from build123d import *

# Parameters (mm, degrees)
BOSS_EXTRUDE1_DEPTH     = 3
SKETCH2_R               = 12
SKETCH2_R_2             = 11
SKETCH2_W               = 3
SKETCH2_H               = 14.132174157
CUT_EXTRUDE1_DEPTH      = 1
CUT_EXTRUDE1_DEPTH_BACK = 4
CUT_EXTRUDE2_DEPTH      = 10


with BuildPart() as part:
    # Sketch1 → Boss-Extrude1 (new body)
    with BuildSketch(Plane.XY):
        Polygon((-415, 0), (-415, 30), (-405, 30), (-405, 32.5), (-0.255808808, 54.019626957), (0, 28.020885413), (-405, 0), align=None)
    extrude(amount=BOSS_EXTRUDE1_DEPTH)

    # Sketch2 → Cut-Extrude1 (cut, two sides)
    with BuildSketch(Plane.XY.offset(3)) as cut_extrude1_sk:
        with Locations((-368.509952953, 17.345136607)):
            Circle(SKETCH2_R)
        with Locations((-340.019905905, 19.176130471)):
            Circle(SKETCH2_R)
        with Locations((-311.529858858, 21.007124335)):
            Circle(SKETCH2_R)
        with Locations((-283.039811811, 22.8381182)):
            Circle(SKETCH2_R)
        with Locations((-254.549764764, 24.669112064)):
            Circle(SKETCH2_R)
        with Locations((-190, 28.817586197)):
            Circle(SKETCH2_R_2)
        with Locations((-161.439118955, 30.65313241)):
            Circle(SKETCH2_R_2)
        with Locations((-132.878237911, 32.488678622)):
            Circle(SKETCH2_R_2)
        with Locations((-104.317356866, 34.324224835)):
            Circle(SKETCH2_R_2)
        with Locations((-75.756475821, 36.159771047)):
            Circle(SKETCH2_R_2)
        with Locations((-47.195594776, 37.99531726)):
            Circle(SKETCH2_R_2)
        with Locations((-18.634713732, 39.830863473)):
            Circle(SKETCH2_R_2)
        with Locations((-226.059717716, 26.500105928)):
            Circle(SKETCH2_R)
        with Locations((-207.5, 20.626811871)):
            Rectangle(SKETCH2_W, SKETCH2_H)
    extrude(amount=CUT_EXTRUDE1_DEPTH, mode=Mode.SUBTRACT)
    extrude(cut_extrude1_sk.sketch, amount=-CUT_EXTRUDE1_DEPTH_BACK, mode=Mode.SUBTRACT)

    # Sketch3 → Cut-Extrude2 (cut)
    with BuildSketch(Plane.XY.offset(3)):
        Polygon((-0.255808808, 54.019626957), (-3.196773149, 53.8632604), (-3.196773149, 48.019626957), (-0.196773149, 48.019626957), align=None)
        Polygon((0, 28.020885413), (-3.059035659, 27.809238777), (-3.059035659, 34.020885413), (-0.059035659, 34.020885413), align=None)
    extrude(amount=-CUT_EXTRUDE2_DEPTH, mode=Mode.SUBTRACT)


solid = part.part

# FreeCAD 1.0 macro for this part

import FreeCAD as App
import Part
import Sketcher
from FreeCAD import Vector

doc = App.newDocument("Part")
body = doc.addObject("PartDesign::Body", "Body")

sketch1 = doc.addObject("Sketcher::SketchObject", "Sketch")
body.addObject(sketch1)
sketch1.AttachmentSupport = (doc.XY_Plane, [""])
sketch1.MapMode = "FlatFace"
sketch1.addGeometry(Part.LineSegment(Vector(-415, 30, 0), Vector(-415, 0, 0)), False)
sketch1.addGeometry(Part.LineSegment(Vector(-415, 0, 0), Vector(-405, 0, 0)), False)
sketch1.addGeometry(Part.LineSegment(Vector(-405, 0, 0), Vector(0, 28, 0)), False)
sketch1.addGeometry(Part.LineSegment(Vector(0, 28, 0), Vector(-0.3, 54, 0)), False)
sketch1.addGeometry(Part.LineSegment(Vector(-0.3, 54, 0), Vector(-405, 32.5, 0)), False)
sketch1.addGeometry(Part.LineSegment(Vector(-405, 32.5, 0), Vector(-405, 30, 0)), False)
sketch1.addGeometry(Part.LineSegment(Vector(-405, 30, 0), Vector(-415, 30, 0)), False)
sketch1.addConstraint(Sketcher.Constraint("Coincident", 0, 2, 1, 1))
sketch1.addConstraint(Sketcher.Constraint("Coincident", 1, 2, 2, 1))
sketch1.addConstraint(Sketcher.Constraint("Coincident", 2, 2, 3, 1))
sketch1.addConstraint(Sketcher.Constraint("Coincident", 3, 2, 4, 1))
sketch1.addConstraint(Sketcher.Constraint("Coincident", 4, 2, 5, 1))
sketch1.addConstraint(Sketcher.Constraint("Coincident", 5, 2, 6, 1))
sketch1.addConstraint(Sketcher.Constraint("Coincident", 6, 2, 0, 1))
sketch1.addConstraint(Sketcher.Constraint("Vertical", 0))
sketch1.addConstraint(Sketcher.Constraint("Horizontal", 1))
sketch1.addConstraint(Sketcher.Constraint("Vertical", 5))
sketch1.addConstraint(Sketcher.Constraint("Horizontal", 6))
sketch1.addConstraint(Sketcher.Constraint("PointOnObject", 0, 2, -1))
sketch1.addConstraint(Sketcher.Constraint("PointOnObject", 2, 2, -2))
sketch1.addConstraint(Sketcher.Constraint("Vertical", 1, 2, 4, 2))
sketch1.addConstraint(Sketcher.Constraint("DistanceX", 1, 1, 1, 2, 10.0))
sketch1.addConstraint(Sketcher.Constraint("DistanceY", 0, 2, 0, 1, 30.0))
sketch1.addConstraint(Sketcher.Constraint("Distance", 3, 26.0))
sketch1.addConstraint(Sketcher.Constraint("DistanceY", 5, 2, 5, 1, 2.5))
sketch1.addConstraint(Sketcher.Constraint("DistanceX", 0, 2, -1, 1, 415.0))
sketch1.addConstraint(Sketcher.Constraint("Distance", 2, 405.968188))
sketch1.addConstraint(Sketcher.Constraint("Distance", 4, 405.31587))
pad1 = doc.addObject("PartDesign::Pad", "Pad")
body.addObject(pad1)
pad1.Profile = sketch1
pad1.Length = 3

sketch2 = doc.addObject("Sketcher::SketchObject", "Sketch001")
body.addObject(sketch2)
sketch2.AttachmentSupport = (doc.XY_Plane, [""])
sketch2.MapMode = "FlatFace"
sketch2.AttachmentOffset = App.Placement(Vector(0, 0, 3), App.Rotation())
sketch2.addGeometry(Part.Circle(Vector(-368.5, 17.3, 0), Vector(0, 0, 1), 12), False)
sketch2.addGeometry(Part.Circle(Vector(-340, 19.2, 0), Vector(0, 0, 1), 12), False)
sketch2.addGeometry(Part.Circle(Vector(-311.5, 21, 0), Vector(0, 0, 1), 12), False)
sketch2.addGeometry(Part.Circle(Vector(-283, 22.8, 0), Vector(0, 0, 1), 12), False)
sketch2.addGeometry(Part.Circle(Vector(-254.5, 24.7, 0), Vector(0, 0, 1), 12), False)
sketch2.addGeometry(Part.Circle(Vector(-190, 28.8, 0), Vector(0, 0, 1), 11), False)
sketch2.addGeometry(Part.Circle(Vector(-161.4, 30.7, 0), Vector(0, 0, 1), 11), False)
sketch2.addGeometry(Part.Circle(Vector(-132.9, 32.5, 0), Vector(0, 0, 1), 11), False)
sketch2.addGeometry(Part.Circle(Vector(-104.3, 34.3, 0), Vector(0, 0, 1), 11), False)
sketch2.addGeometry(Part.Circle(Vector(-75.8, 36.2, 0), Vector(0, 0, 1), 11), False)
sketch2.addGeometry(Part.Circle(Vector(-47.2, 38, 0), Vector(0, 0, 1), 11), False)
sketch2.addGeometry(Part.Circle(Vector(-18.6, 39.8, 0), Vector(0, 0, 1), 11), False)
sketch2.addGeometry(Part.Circle(Vector(-226.1, 26.5, 0), Vector(0, 0, 1), 12), False)
sketch2.addGeometry(Part.LineSegment(Vector(-209, 27.7, 0), Vector(-209, 13.6, 0)), False)
sketch2.addGeometry(Part.LineSegment(Vector(-209, 13.6, 0), Vector(-206, 13.6, 0)), False)
sketch2.addGeometry(Part.LineSegment(Vector(-206, 13.6, 0), Vector(-206, 27.7, 0)), False)
sketch2.addGeometry(Part.LineSegment(Vector(-206, 27.7, 0), Vector(-209, 27.7, 0)), False)
sketch2.addConstraint(Sketcher.Constraint("Coincident", 13, 2, 14, 1))
sketch2.addConstraint(Sketcher.Constraint("Coincident", 14, 2, 15, 1))
sketch2.addConstraint(Sketcher.Constraint("Coincident", 15, 2, 16, 1))
sketch2.addConstraint(Sketcher.Constraint("Coincident", 16, 2, 13, 1))
sketch2.addConstraint(Sketcher.Constraint("Vertical", 13))
sketch2.addConstraint(Sketcher.Constraint("Horizontal", 14))
sketch2.addConstraint(Sketcher.Constraint("Vertical", 15))
sketch2.addConstraint(Sketcher.Constraint("Horizontal", 16))
sketch2.addConstraint(Sketcher.Constraint("Equal", 0, 1))
sketch2.addConstraint(Sketcher.Constraint("Equal", 1, 2))
sketch2.addConstraint(Sketcher.Constraint("Equal", 2, 3))
sketch2.addConstraint(Sketcher.Constraint("Equal", 3, 4))
sketch2.addConstraint(Sketcher.Constraint("Equal", 5, 6))
sketch2.addConstraint(Sketcher.Constraint("Equal", 6, 7))
sketch2.addConstraint(Sketcher.Constraint("Equal", 7, 8))
sketch2.addConstraint(Sketcher.Constraint("Equal", 8, 9))
sketch2.addConstraint(Sketcher.Constraint("Equal", 9, 10))
sketch2.addConstraint(Sketcher.Constraint("Equal", 10, 11))
sketch2.addConstraint(Sketcher.Constraint("Equal", 4, 12))
sketch2.addConstraint(Sketcher.Constraint("Diameter", 0, 24.0))
sketch2.addConstraint(Sketcher.Constraint("Diameter", 5, 22.0))
sketch2.addConstraint(Sketcher.Constraint("DistanceX", 14, 1, 14, 2, 3.0))
sketch2.addConstraint(Sketcher.Constraint("DistanceX", 5, 3, -1, 1, 190.0))
sketch2.addConstraint(Sketcher.Constraint("DistanceX", 13, 2, -1, 1, 209.0))
sketch2.addConstraint(Sketcher.Constraint("DistanceY", 1, 3, 6, 3, 11.477002))
sketch2.addConstraint(Sketcher.Constraint("DistanceY", -1, 1, 15, 2, 27.692899))
sketch2.addConstraint(Sketcher.Constraint("DistanceX", 12, 3, 6, 3, 64.620599))
sketch2.addConstraint(Sketcher.Constraint("DistanceY", 13, 2, 13, 1, 14.132174))
sketch2.addConstraint(Sketcher.Constraint("DistanceY", -1, 1, 1, 3, 19.17613))
sketch2.addConstraint(Sketcher.Constraint("DistanceX", 2, 3, -1, 1, 311.529859))
sketch2.addConstraint(Sketcher.Constraint("DistanceX", 3, 3, -1, 1, 283.039812))
sketch2.addConstraint(Sketcher.Constraint("DistanceY", -1, 1, 3, 3, 22.838118))
sketch2.addConstraint(Sketcher.Constraint("DistanceX", 6, 3, -1, 1, 161.439119))
sketch2.addConstraint(Sketcher.Constraint("DistanceY", -1, 1, 7, 3, 32.488679))
sketch2.addConstraint(Sketcher.Constraint("DistanceY", -1, 1, 9, 3, 36.159771))
sketch2.addConstraint(Sketcher.Constraint("DistanceX", 0, 3, 3, 3, 85.470141))
sketch2.addConstraint(Sketcher.Constraint("DistanceY", 0, 3, 3, 3, 5.492982))
sketch2.addConstraint(Sketcher.Constraint("DistanceX", 1, 3, 4, 3, 85.470141))
sketch2.addConstraint(Sketcher.Constraint("DistanceY", 1, 3, 4, 3, 5.492982))
sketch2.addConstraint(Sketcher.Constraint("DistanceX", 0, 3, 4, 3, 113.960188))
sketch2.addConstraint(Sketcher.Constraint("DistanceY", 2, 3, 5, 3, 7.810462))
sketch2.addConstraint(Sketcher.Constraint("DistanceY", 0, 3, 5, 3, 11.47245))
sketch2.addConstraint(Sketcher.Constraint("DistanceX", 6, 3, 7, 3, 28.560881))
sketch2.addConstraint(Sketcher.Constraint("DistanceX", 7, 3, 8, 3, 28.560881))
sketch2.addConstraint(Sketcher.Constraint("DistanceY", 5, 3, 8, 3, 5.506639))
sketch2.addConstraint(Sketcher.Constraint("DistanceX", 8, 3, 9, 3, 28.560881))
sketch2.addConstraint(Sketcher.Constraint("DistanceX", 9, 3, 10, 3, 28.560881))
sketch2.addConstraint(Sketcher.Constraint("DistanceY", 7, 3, 10, 3, 5.506639))
sketch2.addConstraint(Sketcher.Constraint("DistanceX", 10, 3, 11, 3, 28.560881))
sketch2.addConstraint(Sketcher.Constraint("DistanceY", 8, 3, 11, 3, 5.506639))
sketch2.addConstraint(Sketcher.Constraint("DistanceY", 12, 3, 5, 3, 2.31748))
pocket1 = doc.addObject("PartDesign::Pocket", "Pocket")
body.addObject(pocket1)
pocket1.Profile = sketch2
pocket1.Type = "ThroughAll"
pocket1.Midplane = True

sketch3 = doc.addObject("Sketcher::SketchObject", "Sketch002")
body.addObject(sketch3)
sketch3.AttachmentSupport = (doc.XY_Plane, [""])
sketch3.MapMode = "FlatFace"
sketch3.AttachmentOffset = App.Placement(Vector(0, 0, 3), App.Rotation())
sketch3.addGeometry(Part.LineSegment(Vector(-0.3, 54, 0), Vector(-3.2, 53.9, 0)), False)
sketch3.addGeometry(Part.LineSegment(Vector(-3.2, 53.9, 0), Vector(-3.2, 48, 0)), False)
sketch3.addGeometry(Part.LineSegment(Vector(-3.2, 48, 0), Vector(-0.2, 48, 0)), False)
sketch3.addGeometry(Part.LineSegment(Vector(-0.2, 48, 0), Vector(-0.3, 54, 0)), False)
sketch3.addGeometry(Part.LineSegment(Vector(-3.1, 27.8, 0), Vector(0, 28, 0)), False)
sketch3.addGeometry(Part.LineSegment(Vector(0, 28, 0), Vector(-0.1, 34, 0)), False)
sketch3.addGeometry(Part.LineSegment(Vector(-0.1, 34, 0), Vector(-3.1, 34, 0)), False)
sketch3.addGeometry(Part.LineSegment(Vector(-3.1, 34, 0), Vector(-3.1, 27.8, 0)), False)
sketch3.addConstraint(Sketcher.Constraint("Coincident", 0, 2, 1, 1))
sketch3.addConstraint(Sketcher.Constraint("Coincident", 1, 2, 2, 1))
sketch3.addConstraint(Sketcher.Constraint("Coincident", 2, 2, 3, 1))
sketch3.addConstraint(Sketcher.Constraint("Coincident", 3, 2, 0, 1))
sketch3.addConstraint(Sketcher.Constraint("Coincident", 4, 2, 5, 1))
sketch3.addConstraint(Sketcher.Constraint("Coincident", 5, 2, 6, 1))
sketch3.addConstraint(Sketcher.Constraint("Coincident", 6, 2, 7, 1))
sketch3.addConstraint(Sketcher.Constraint("Coincident", 7, 2, 4, 1))
sketch3.addConstraint(Sketcher.Constraint("Vertical", 1))
sketch3.addConstraint(Sketcher.Constraint("Horizontal", 2))
sketch3.addConstraint(Sketcher.Constraint("Horizontal", 6))
sketch3.addConstraint(Sketcher.Constraint("Vertical", 7))
sketch3.addConstraint(Sketcher.Constraint("PointOnObject", 4, 2, -2))
sketch3.addConstraint(Sketcher.Constraint("Parallel", 3, 5))
sketch3.addConstraint(Sketcher.Constraint("Equal", 2, 6))
sketch3.addConstraint(Sketcher.Constraint("Equal", 3, 5))
sketch3.addConstraint(Sketcher.Constraint("DistanceX", 2, 1, 2, 2, 3.0))
sketch3.addConstraint(Sketcher.Constraint("DistanceY", 2, 2, 3, 2, 6.0))
sketch3.addConstraint(Sketcher.Constraint("Distance", 0, 2.945118))
sketch3.addConstraint(Sketcher.Constraint("Distance", 4, 3.066349))
sketch3.addConstraint(Sketcher.Constraint("DistanceY", 1, 2, 1, 1, 5.843633))
sketch3.addConstraint(Sketcher.Constraint("DistanceY", -1, 1, 0, 2, 53.86326))
sketch3.addConstraint(Sketcher.Constraint("DistanceX", 3, 2, -1, 1, 0.255809))
sketch3.addConstraint(Sketcher.Constraint("DistanceY", -1, 1, 7, 2, 27.809239))
pocket2 = doc.addObject("PartDesign::Pocket", "Pocket001")
body.addObject(pocket2)
pocket2.Profile = sketch3
pocket2.Length = 10

doc.recompute()
